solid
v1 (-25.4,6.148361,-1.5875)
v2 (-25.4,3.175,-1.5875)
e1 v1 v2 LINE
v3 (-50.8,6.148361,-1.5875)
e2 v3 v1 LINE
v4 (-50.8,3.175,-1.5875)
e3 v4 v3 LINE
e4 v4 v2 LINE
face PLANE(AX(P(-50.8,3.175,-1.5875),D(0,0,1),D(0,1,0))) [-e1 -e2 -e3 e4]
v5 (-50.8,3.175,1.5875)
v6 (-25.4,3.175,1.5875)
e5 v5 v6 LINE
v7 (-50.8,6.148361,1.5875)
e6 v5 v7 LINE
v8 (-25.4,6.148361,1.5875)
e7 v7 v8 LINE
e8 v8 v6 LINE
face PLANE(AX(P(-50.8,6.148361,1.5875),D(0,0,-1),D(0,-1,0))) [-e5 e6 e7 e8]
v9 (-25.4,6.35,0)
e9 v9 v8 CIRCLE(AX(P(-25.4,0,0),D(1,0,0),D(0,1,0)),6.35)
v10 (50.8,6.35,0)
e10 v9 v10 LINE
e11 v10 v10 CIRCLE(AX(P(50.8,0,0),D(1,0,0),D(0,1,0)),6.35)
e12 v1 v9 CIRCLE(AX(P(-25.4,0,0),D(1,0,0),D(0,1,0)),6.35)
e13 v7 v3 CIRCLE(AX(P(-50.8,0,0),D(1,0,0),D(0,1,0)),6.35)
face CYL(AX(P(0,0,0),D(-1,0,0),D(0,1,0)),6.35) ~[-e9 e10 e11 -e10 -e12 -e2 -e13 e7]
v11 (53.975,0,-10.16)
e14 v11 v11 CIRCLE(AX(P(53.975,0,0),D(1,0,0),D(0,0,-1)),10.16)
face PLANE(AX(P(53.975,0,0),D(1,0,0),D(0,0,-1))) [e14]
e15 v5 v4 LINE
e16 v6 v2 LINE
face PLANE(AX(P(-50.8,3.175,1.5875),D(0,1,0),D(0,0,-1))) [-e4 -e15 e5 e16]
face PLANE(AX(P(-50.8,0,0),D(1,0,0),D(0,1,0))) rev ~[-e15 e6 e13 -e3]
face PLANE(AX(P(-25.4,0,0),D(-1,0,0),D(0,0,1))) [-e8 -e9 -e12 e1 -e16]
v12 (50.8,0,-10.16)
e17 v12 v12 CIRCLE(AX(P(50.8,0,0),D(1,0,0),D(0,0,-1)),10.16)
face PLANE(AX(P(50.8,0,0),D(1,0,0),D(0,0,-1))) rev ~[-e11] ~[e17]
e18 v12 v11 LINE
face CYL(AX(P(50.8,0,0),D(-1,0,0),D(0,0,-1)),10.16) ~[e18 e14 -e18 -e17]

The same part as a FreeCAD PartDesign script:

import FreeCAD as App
import Part
import Sketcher
from FreeCAD import Vector
Q = App.Units.Quantity

doc = App.newDocument("Part")
body = doc.addObject("PartDesign::Body", "Body")

# Sketch on YZ plane
sketch1 = body.newObject("Sketcher::SketchObject", "Sketch")
sketch1.AttachmentSupport = (doc.getObject("YZ_Plane"), [""])
sketch1.MapMode = "FlatFace"
sketch1.addGeometry(Part.Circle(Vector(0, 0, 0), Vector(0, 0, 1), 6.35), False)
sketch1.addConstraint(Sketcher.Constraint("Coincident", 0, 3, -1, 1))
sketch1.addConstraint(Sketcher.Constraint("Diameter", 0, Q("0.5 in")))
pad1 = body.newObject("PartDesign::Pad", "Pad")
pad1.Profile = sketch1
pad1.Length = Q("4 in")
pad1.Midplane = True

# Sketch on YZ plane
sketch2 = body.newObject("Sketcher::SketchObject", "Sketch001")
sketch2.AttachmentSupport = (doc.getObject("YZ_Plane"), [""])
sketch2.MapMode = "FlatFace"
sketch2.AttachmentOffset = App.Placement(Vector(0, 0, 2 * 25.4), App.Rotation())
sketch2.addGeometry(Part.Circle(Vector(0, 0, 0), Vector(0, 0, 1), 10.16), False)
sketch2.addConstraint(Sketcher.Constraint("Coincident", 0, 3, -1, 1))
sketch2.addConstraint(Sketcher.Constraint("Diameter", 0, Q("0.8 in")))
pad2 = body.newObject("PartDesign::Pad", "Pad001")
pad2.Profile = sketch2
pad2.Length = Q("0.125 in")

# Sketch on YZ plane
sketch3 = body.newObject("Sketcher::SketchObject", "Sketch002")
sketch3.AttachmentSupport = (doc.getObject("YZ_Plane"), [""])
sketch3.MapMode = "FlatFace"
sketch3.AttachmentOffset = App.Placement(Vector(0, 0, -2 * 25.4), App.Rotation())
sketch3.addGeometry(Part.LineSegment(Vector(3.175, -1.5875, 0), Vector(3.175, 1.5875, 0)), False)
sketch3.addGeometry(Part.LineSegment(Vector(3.175, 1.5875, 0), Vector(9.525, 1.5875, 0)), False)
sketch3.addGeometry(Part.LineSegment(Vector(9.525, 1.5875, 0), Vector(9.525, -1.5875, 0)), False)
sketch3.addGeometry(Part.LineSegment(Vector(9.525, -1.5875, 0), Vector(3.175, -1.5875, 0)), False)
sketch3.addConstraint(Sketcher.Constraint("Coincident", 0, 2, 1, 1))
sketch3.addConstraint(Sketcher.Constraint("Coincident", 1, 2, 2, 1))
sketch3.addConstraint(Sketcher.Constraint("Coincident", 2, 2, 3, 1))
sketch3.addConstraint(Sketcher.Constraint("Coincident", 3, 2, 0, 1))
sketch3.addConstraint(Sketcher.Constraint("Vertical", 0))
sketch3.addConstraint(Sketcher.Constraint("Horizontal", 1))
sketch3.addConstraint(Sketcher.Constraint("Vertical", 2))
sketch3.addConstraint(Sketcher.Constraint("Horizontal", 3))
sketch3.addConstraint(Sketcher.Constraint("DistanceX", 1, 1, 1, 2, Q("0.25 in")))
sketch3.addConstraint(Sketcher.Constraint("DistanceY", 0, 1, 0, 2, Q("0.125 in")))
sketch3.addConstraint(Sketcher.Constraint("DistanceX", -1, 1, 0, 2, Q("0.125 in")))
sketch3.addConstraint(Sketcher.Constraint("DistanceY", -1, 1, 0, 2, Q("0.0625 in")))
pocket1 = body.newObject("PartDesign::Pocket", "Pocket")
pocket1.Profile = sketch3
pocket1.Length = Q("1 in")
pocket1.Reversed = True

doc.recompute()
